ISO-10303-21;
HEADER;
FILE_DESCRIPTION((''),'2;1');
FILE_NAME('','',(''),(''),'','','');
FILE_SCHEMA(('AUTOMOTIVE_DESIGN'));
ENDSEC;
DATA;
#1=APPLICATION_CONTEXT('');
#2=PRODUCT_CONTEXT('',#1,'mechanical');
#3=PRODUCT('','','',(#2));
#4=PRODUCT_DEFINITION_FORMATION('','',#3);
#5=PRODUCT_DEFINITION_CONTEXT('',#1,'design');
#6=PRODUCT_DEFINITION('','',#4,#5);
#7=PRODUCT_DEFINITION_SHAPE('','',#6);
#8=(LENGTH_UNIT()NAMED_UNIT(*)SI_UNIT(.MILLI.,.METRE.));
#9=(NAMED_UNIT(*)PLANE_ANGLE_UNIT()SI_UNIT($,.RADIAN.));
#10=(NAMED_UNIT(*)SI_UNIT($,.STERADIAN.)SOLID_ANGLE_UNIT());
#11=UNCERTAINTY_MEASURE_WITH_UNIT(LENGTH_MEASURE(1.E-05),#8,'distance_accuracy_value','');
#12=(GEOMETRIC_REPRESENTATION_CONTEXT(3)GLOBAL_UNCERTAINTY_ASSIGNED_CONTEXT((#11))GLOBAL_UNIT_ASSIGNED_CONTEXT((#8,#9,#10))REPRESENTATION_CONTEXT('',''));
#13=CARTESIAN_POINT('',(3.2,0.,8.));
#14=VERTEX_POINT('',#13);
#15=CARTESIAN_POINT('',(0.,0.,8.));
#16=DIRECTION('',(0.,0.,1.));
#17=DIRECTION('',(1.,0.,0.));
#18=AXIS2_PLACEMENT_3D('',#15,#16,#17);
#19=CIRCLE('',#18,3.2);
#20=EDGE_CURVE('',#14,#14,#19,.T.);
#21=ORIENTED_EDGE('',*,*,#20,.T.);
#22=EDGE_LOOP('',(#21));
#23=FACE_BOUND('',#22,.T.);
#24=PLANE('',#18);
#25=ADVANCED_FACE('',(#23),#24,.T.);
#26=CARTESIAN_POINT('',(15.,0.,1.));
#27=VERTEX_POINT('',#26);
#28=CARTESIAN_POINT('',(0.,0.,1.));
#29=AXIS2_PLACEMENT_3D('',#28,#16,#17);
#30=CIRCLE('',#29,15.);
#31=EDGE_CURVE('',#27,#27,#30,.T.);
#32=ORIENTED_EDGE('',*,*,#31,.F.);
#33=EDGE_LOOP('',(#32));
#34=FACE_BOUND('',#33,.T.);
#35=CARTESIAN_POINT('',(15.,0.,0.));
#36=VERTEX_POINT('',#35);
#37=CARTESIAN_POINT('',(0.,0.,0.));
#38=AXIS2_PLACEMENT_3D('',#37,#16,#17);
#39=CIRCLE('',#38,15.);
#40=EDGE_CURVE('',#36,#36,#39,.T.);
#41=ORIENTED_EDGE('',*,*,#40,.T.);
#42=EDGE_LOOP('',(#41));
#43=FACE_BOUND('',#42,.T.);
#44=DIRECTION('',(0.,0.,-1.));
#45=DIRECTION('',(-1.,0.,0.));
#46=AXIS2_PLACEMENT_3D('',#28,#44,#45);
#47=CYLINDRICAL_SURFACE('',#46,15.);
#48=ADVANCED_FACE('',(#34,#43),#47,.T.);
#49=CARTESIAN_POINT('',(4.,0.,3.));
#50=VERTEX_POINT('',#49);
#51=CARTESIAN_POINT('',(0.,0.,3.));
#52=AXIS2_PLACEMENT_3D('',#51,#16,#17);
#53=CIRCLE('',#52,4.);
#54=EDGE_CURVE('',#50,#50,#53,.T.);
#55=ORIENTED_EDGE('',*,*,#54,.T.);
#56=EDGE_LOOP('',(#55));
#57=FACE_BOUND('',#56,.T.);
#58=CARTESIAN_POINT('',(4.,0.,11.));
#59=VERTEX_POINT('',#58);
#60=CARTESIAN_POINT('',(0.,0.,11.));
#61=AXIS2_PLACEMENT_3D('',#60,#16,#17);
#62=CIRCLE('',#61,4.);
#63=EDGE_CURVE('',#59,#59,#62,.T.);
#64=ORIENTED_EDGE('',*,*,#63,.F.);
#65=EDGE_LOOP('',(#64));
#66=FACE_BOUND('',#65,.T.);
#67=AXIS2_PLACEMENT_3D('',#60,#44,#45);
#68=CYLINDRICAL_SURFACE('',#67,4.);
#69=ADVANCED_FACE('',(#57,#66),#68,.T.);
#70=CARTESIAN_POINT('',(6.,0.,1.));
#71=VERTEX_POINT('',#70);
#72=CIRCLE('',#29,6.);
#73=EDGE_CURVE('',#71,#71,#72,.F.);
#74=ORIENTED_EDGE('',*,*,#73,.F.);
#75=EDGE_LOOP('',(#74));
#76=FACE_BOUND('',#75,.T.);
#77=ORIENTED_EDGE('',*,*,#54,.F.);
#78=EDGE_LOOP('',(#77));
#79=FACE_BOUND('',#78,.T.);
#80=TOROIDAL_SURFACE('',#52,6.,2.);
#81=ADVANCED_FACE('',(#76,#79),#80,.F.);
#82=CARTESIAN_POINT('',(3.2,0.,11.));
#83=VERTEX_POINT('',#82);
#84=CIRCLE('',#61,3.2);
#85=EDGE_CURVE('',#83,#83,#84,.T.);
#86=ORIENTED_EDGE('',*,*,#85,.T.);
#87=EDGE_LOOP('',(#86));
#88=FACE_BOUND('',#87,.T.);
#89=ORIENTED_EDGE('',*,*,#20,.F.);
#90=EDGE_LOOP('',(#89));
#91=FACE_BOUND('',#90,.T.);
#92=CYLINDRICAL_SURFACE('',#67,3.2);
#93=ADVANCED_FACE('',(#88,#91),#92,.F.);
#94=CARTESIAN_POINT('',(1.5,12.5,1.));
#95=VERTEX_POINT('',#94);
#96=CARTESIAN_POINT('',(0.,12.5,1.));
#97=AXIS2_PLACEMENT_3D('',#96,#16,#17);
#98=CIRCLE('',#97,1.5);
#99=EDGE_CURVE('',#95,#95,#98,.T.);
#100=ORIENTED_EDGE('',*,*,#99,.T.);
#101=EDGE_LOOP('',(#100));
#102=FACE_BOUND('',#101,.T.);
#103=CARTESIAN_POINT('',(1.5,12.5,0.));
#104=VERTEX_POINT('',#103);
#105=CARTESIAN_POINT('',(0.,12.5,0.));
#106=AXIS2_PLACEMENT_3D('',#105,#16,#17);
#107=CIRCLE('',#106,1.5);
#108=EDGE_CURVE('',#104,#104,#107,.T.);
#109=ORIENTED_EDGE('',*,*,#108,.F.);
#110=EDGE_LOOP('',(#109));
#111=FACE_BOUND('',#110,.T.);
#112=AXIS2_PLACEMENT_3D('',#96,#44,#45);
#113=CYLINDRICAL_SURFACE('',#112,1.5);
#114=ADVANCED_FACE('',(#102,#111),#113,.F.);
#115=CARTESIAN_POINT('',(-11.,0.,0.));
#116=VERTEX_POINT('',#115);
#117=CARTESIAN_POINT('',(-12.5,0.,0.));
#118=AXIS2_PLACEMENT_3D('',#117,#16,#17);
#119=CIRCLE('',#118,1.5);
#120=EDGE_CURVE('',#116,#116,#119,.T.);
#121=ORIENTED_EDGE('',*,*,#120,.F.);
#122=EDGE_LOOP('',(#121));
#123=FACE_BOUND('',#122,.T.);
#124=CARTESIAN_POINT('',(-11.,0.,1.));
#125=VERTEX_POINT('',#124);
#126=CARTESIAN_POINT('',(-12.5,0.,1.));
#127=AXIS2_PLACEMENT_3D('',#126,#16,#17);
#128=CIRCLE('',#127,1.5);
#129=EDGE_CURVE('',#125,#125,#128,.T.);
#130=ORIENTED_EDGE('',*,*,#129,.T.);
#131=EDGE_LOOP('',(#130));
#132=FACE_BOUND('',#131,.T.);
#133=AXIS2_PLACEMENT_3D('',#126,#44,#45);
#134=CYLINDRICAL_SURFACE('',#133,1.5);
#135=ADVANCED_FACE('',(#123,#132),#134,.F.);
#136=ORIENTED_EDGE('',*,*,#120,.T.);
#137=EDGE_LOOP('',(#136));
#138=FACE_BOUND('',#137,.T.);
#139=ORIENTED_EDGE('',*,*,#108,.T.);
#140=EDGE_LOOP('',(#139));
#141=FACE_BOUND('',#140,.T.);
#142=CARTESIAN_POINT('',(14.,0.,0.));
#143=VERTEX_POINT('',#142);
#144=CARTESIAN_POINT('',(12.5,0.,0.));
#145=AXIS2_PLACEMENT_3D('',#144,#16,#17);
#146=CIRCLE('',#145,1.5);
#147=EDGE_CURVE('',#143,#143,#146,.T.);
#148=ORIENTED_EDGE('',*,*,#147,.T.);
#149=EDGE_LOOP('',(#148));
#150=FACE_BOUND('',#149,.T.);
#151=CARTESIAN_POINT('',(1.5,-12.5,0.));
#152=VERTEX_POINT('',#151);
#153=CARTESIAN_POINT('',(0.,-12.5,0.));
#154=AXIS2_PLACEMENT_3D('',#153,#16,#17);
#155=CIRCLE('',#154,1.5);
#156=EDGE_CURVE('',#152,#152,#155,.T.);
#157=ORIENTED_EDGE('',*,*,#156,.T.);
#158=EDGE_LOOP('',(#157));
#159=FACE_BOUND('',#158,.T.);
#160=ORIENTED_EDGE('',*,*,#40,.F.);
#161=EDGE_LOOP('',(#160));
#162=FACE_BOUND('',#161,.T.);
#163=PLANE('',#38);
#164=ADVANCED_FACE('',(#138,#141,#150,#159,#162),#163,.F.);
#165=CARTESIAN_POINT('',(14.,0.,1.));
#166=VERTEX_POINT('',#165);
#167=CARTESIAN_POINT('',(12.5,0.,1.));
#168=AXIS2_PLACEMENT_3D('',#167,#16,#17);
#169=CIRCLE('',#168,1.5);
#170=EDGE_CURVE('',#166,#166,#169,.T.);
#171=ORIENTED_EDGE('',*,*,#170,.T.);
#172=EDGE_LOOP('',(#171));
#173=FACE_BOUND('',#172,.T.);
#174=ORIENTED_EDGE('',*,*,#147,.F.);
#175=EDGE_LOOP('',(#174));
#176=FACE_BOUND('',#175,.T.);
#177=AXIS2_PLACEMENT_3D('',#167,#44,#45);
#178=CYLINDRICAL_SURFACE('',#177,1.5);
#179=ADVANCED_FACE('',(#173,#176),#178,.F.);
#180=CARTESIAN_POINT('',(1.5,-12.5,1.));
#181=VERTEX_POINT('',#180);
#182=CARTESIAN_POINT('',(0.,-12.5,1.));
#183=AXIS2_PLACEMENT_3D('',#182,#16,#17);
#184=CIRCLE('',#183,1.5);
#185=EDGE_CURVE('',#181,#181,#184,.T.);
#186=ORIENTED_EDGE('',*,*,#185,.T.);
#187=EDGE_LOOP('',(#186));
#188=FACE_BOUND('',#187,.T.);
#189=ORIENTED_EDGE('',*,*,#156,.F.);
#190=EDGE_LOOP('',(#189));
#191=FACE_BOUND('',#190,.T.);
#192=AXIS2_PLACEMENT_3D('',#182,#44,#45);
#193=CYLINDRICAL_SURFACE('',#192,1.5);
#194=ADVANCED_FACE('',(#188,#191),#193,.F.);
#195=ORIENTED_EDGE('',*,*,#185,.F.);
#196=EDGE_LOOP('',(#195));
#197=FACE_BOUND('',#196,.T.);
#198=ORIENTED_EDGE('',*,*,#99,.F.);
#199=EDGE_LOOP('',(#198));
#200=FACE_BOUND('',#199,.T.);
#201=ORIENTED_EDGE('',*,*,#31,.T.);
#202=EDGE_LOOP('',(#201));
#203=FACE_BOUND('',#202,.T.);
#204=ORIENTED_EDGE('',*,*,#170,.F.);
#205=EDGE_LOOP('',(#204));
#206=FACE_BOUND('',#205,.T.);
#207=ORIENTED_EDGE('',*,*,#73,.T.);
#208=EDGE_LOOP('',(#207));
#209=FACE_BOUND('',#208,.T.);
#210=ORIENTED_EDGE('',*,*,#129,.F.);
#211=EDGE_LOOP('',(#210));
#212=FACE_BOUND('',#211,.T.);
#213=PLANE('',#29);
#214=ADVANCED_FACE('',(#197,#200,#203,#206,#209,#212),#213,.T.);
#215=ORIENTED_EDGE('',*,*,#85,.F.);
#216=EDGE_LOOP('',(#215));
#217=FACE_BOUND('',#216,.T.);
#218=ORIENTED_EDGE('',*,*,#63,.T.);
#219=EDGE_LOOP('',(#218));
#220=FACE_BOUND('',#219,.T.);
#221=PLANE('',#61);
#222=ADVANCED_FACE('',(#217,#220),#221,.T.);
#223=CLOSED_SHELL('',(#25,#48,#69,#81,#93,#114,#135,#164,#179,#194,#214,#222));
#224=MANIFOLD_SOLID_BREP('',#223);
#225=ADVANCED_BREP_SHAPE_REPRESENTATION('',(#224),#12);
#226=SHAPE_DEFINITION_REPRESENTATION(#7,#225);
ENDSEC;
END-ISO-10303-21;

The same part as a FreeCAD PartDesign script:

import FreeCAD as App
import Part
import Sketcher
Q = App.Units.Quantity


def edges_at(feature, points):
    """Names of the edges that pass closest to the given points."""
    edges = feature.Shape.Edges
    near = lambda p: min(range(len(edges)), key=lambda i: edges[i].distToShape(Part.Vertex(*p))[0])
    return sorted({f"Edge{near(p) + 1}" for p in points})

doc = App.newDocument("Part")
body = doc.addObject("PartDesign::Body", "Body")

# Sketch on XY plane
sketch1 = doc.addObject("Sketcher::SketchObject", "Sketch")
body.addObject(sketch1)
sketch1.AttachmentSupport = (doc.XY_Plane, [""])
sketch1.MapMode = "FlatFace"
sketch1.addGeometry([
    Part.Circle(App.Vector(0, 0, 0), App.Vector(0, 0, 1), 15),  # 0
    Part.Circle(App.Vector(0, -12.5, 0), App.Vector(0, 0, 1), 1.5),  # 1
    Part.Circle(App.Vector(-12.5, 0, 0), App.Vector(0, 0, 1), 1.5),  # 2
    Part.Circle(App.Vector(0, 0, 0), App.Vector(0, 0, 1), 4),  # 3
    Part.Circle(App.Vector(12.5, 0, 0), App.Vector(0, 0, 1), 1.5),  # 4
    Part.Circle(App.Vector(0, 12.5, 0), App.Vector(0, 0, 1), 1.5),  # 5
], False)
sketch1.addConstraint([
    Sketcher.Constraint("Coincident", 0, 3, -1, 1),
    Sketcher.Constraint("Coincident", 3, 3, -1, 1),
    Sketcher.Constraint("Equal", 1, 2),
    Sketcher.Constraint("Equal", 2, 4),
    Sketcher.Constraint("Equal", 4, 5),
    Sketcher.Constraint("Symmetric", 2, 3, 4, 3, -1, 1),
    Sketcher.Constraint("Symmetric", 1, 3, 5, 3, -1, 1),
    Sketcher.Constraint("PointOnObject", 1, 3, -2),
    Sketcher.Constraint("PointOnObject", 2, 3, -1),
    Sketcher.Constraint("Diameter", 0, Q("30 mm")),
    Sketcher.Constraint("Diameter", 1, Q("3 mm")),
    Sketcher.Constraint("Diameter", 3, Q("8 mm")),
    Sketcher.Constraint("DistanceX", 2, 3, 4, 3, Q("25 mm")),
    Sketcher.Constraint("DistanceY", 1, 3, 5, 3, Q("25 mm")),
])
pad1 = doc.addObject("PartDesign::Pad", "Pad")
body.addObject(pad1)
pad1.Profile = sketch1
pad1.Length = 1

# Sketch on XY plane
sketch2 = doc.addObject("Sketcher::SketchObject", "Sketch001")
body.addObject(sketch2)
sketch2.AttachmentSupport = (doc.XY_Plane, [""])
sketch2.MapMode = "FlatFace"
sketch2.addGeometry([
    Part.Circle(App.Vector(0, 0, 0), App.Vector(0, 0, 1), 4),
    Part.Circle(App.Vector(0, 0, 0), App.Vector(0, 0, 1), 3.2),
], False)
sketch2.addConstraint([
    Sketcher.Constraint("Coincident", 0, 3, -1, 1),
    Sketcher.Constraint("Coincident", 1, 3, -1, 1),
    Sketcher.Constraint("Diameter", 0, Q("8 mm")),
    Sketcher.Constraint("Diameter", 1, Q("6.4 mm")),
])
pad2 = doc.addObject("PartDesign::Pad", "Pad001")
body.addObject(pad2)
pad2.Profile = sketch2
pad2.Length = 11

# Sketch on XY plane
sketch3 = doc.addObject("Sketcher::SketchObject", "Sketch002")
body.addObject(sketch3)
sketch3.AttachmentSupport = (doc.XY_Plane, [""])
sketch3.MapMode = "FlatFace"
sketch3.addGeometry(Part.Circle(App.Vector(0, 0, 0), App.Vector(0, 0, 1), 3.2), False)
sketch3.addConstraint([
    Sketcher.Constraint("Coincident", 0, 3, -1, 1),
    Sketcher.Constraint("Diameter", 0, Q("6.4 mm")),
])
pad3 = doc.addObject("PartDesign::Pad", "Pad002")
body.addObject(pad3)
pad3.Profile = sketch3
pad3.Length = 8
doc.recompute()

fillet = doc.addObject("PartDesign::Fillet", "Fillet")
body.addObject(fillet)
fillet.Base = (pad3, edges_at(pad3, [(-4, 0, 1)]))
fillet.Radius = 2

doc.recompute()
